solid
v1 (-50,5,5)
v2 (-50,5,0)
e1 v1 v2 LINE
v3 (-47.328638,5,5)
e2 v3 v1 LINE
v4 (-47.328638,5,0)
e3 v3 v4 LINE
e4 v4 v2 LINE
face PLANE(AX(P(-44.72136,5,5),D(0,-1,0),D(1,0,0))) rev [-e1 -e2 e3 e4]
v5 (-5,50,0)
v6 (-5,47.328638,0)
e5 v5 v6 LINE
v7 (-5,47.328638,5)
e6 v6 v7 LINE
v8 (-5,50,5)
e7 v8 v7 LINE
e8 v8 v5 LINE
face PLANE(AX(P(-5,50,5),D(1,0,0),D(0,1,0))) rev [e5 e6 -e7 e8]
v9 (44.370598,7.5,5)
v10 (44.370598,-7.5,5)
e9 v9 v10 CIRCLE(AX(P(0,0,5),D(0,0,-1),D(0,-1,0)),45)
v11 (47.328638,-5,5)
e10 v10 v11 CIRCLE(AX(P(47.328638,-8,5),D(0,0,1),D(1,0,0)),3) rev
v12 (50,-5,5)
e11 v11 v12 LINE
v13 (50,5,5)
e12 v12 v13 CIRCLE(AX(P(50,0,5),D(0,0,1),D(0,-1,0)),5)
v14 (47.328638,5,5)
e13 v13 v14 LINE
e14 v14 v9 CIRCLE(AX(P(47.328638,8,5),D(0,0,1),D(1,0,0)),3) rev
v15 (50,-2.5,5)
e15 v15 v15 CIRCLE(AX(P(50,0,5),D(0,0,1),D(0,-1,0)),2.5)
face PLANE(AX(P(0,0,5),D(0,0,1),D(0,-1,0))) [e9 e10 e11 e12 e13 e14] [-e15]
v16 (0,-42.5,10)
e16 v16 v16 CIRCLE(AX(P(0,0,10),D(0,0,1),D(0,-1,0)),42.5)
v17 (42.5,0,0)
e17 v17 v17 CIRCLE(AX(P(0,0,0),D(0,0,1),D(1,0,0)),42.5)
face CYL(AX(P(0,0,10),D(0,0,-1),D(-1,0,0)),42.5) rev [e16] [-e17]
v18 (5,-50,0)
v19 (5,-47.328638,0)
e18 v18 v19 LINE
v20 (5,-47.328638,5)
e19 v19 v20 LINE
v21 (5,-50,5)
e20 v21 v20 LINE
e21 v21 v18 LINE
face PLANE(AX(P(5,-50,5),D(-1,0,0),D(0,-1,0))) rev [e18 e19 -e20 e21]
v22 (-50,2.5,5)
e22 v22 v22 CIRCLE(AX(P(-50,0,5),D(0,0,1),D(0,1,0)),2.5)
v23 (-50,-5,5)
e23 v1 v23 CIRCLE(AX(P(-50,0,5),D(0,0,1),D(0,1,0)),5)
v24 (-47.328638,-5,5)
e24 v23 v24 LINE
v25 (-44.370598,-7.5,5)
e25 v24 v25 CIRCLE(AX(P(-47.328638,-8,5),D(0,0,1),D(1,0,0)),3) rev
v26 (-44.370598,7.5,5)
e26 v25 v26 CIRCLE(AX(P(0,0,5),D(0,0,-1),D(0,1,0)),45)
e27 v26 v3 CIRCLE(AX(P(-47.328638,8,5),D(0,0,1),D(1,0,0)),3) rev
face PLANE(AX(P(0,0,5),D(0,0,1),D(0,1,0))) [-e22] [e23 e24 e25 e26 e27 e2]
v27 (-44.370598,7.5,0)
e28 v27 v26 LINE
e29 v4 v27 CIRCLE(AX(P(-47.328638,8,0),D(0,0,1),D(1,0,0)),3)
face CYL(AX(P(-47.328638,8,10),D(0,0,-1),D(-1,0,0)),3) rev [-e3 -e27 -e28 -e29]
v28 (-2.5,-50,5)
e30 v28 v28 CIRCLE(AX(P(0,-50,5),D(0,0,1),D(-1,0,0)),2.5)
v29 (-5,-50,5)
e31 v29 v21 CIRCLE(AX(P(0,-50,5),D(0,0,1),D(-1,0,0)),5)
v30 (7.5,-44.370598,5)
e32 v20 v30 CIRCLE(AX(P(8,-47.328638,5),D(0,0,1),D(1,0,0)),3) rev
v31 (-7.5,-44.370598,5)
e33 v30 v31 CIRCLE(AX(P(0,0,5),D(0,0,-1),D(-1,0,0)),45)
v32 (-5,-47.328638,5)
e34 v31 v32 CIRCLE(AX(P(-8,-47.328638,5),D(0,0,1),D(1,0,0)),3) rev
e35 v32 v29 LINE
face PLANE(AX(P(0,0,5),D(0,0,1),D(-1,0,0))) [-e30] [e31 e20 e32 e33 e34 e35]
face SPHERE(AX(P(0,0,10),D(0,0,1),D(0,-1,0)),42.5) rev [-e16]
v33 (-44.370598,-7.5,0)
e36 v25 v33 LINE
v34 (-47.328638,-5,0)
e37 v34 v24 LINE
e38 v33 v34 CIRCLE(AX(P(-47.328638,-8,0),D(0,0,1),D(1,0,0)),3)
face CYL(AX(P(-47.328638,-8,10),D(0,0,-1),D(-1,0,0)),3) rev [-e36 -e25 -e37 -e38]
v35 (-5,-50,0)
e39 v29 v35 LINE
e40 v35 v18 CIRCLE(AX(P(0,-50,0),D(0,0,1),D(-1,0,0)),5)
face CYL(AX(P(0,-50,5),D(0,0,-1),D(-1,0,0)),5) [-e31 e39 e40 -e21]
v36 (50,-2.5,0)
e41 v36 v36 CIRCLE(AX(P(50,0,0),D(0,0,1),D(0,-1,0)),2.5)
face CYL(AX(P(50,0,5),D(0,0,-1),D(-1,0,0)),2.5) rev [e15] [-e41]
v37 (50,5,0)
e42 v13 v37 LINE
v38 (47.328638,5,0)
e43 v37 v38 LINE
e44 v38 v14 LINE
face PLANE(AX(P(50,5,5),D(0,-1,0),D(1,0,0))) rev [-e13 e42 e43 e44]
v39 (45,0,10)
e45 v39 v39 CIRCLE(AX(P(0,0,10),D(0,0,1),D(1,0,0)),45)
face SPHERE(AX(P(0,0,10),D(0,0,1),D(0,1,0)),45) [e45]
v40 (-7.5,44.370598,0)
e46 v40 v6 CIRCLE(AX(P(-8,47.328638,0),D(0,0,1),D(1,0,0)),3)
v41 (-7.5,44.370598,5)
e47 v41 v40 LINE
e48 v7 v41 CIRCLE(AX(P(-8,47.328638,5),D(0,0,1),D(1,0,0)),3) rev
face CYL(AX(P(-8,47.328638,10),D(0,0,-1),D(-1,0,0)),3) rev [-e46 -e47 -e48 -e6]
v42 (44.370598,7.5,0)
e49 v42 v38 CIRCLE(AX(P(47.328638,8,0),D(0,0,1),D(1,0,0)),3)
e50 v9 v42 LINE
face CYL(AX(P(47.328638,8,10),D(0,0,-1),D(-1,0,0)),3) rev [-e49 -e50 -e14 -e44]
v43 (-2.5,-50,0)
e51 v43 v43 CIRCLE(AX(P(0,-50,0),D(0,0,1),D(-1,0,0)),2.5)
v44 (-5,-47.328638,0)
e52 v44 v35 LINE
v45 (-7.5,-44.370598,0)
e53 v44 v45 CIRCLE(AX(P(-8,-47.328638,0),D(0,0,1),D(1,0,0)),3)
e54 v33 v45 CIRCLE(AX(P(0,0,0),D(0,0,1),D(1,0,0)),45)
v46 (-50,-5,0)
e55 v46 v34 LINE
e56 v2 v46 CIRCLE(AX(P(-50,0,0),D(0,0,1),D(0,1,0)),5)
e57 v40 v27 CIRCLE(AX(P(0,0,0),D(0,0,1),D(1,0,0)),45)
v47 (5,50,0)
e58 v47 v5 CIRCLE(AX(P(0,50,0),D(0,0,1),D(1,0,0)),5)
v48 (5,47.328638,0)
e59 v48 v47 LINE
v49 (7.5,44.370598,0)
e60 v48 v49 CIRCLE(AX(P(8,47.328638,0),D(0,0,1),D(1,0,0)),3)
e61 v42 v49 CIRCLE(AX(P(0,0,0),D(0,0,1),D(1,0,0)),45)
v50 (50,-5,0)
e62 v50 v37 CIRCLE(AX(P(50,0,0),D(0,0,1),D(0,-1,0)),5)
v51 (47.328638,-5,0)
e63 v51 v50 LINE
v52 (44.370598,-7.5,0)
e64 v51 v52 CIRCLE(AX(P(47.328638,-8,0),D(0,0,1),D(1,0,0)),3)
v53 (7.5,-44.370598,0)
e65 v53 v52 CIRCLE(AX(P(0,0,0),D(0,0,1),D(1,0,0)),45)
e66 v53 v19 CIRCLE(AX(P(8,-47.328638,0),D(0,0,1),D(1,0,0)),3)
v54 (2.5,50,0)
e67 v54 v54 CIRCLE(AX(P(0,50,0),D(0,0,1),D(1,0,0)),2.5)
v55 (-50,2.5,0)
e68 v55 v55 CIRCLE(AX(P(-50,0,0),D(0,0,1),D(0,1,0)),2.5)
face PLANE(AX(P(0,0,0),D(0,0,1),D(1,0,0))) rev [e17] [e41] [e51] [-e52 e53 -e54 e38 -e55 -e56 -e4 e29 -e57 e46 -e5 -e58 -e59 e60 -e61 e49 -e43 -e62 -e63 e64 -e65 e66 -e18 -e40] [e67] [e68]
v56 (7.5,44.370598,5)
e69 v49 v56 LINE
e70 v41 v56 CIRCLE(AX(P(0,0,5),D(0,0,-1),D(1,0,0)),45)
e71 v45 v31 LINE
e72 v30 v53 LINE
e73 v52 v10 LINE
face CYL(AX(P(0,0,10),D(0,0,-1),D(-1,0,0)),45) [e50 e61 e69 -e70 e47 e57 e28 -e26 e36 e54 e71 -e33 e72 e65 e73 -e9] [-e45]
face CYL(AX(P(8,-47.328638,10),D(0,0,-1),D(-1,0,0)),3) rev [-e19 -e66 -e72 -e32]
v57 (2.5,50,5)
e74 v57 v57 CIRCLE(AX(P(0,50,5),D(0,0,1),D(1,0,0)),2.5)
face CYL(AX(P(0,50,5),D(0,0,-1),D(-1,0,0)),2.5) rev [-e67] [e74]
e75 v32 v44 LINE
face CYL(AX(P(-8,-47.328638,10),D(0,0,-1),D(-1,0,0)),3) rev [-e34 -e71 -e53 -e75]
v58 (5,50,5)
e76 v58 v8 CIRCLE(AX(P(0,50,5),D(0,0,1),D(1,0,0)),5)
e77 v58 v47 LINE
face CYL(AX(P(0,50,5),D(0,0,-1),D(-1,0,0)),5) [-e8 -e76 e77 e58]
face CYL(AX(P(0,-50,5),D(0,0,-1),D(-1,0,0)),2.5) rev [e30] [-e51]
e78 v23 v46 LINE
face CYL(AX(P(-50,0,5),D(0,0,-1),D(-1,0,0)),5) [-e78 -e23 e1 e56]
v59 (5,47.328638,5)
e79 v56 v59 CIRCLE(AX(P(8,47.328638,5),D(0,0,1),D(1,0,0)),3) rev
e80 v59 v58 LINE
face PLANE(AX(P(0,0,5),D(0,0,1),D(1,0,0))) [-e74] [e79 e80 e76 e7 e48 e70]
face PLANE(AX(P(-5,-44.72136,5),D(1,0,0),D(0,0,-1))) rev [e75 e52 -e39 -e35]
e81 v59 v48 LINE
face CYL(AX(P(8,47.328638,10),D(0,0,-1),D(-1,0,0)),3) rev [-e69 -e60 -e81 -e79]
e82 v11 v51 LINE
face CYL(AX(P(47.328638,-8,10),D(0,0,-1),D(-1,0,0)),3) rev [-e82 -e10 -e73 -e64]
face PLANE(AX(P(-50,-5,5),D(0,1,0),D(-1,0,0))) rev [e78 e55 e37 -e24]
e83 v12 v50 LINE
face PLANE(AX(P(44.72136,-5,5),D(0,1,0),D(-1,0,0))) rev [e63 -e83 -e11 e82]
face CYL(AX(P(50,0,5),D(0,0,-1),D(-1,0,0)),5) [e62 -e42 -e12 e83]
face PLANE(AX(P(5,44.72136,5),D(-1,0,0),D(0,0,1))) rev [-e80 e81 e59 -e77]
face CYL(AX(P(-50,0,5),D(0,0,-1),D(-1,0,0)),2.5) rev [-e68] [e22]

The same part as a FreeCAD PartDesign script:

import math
import FreeCAD as App
import Part
import Sketcher

V = App.Vector
Q = App.Units.Quantity


def edges_at(feature, points):
    """Names of the edges that pass closest to the given points."""
    edges = feature.Shape.Edges
    near = lambda p: min(range(len(edges)), key=lambda i: edges[i].distToShape(Part.Vertex(*p))[0])
    return sorted({f"Edge{near(p) + 1}" for p in points})

doc = App.newDocument("Part")
body = doc.addObject("PartDesign::Body", "Body")

sketch1 = body.newObject("Sketcher::SketchObject", "Sketch")
sketch1.AttachmentSupport = (doc.getObject("XY_Plane"), [""])
sketch1.MapMode = "FlatFace"
sketch1.addGeometry(Part.Circle(V(0, 0, 0), V(0, 0, 1), 45), False)
sketch1.addGeometry(Part.Circle(V(0, 0, 0), V(0, 0, 1), 42), False)
sketch1.addConstraint(Sketcher.Constraint("Coincident", 0, 3, -1, 1))
sketch1.addConstraint(Sketcher.Constraint("Coincident", 1, 3, -1, 1))
sketch1.addConstraint(Sketcher.Constraint("Diameter", 0, Q("90 mm")))
sketch1.addConstraint(Sketcher.Constraint("Diameter", 1, Q("85 mm")))
pad1 = body.newObject("PartDesign::Pad", "Pad")
pad1.Profile = sketch1
pad1.Length = 10

sketch2 = body.newObject("Sketcher::SketchObject", "Sketch001")
sketch2.AttachmentSupport = (doc.getObject("YZ_Plane"), [""])
sketch2.MapMode = "FlatFace"
sketch2.addGeometry(Part.LineSegment(V(0, 52.5, 0), V(0, 55, 0)), False)
sketch2.addGeometry(Part.ArcOfCircle(Part.Circle(V(0, 10, 0), V(0, 0, 1), 45), math.radians(90), math.radians(180)), False)
sketch2.addGeometry(Part.LineSegment(V(-45, 10, 0), V(-42.5, 10, 0)), False)
sketch2.addGeometry(Part.ArcOfCircle(Part.Circle(V(0, 10, 0), V(0, 0, 1), 42.5), math.radians(90), math.radians(180)), False)
sketch2.addConstraint(Sketcher.Constraint("Coincident", 0, 2, 1, 1))
sketch2.addConstraint(Sketcher.Constraint("Coincident", 1, 2, 2, 1))
sketch2.addConstraint(Sketcher.Constraint("Coincident", 2, 2, 3, 2))
sketch2.addConstraint(Sketcher.Constraint("Coincident", 3, 1, 0, 1))
sketch2.addConstraint(Sketcher.Constraint("Vertical", 0))
sketch2.addConstraint(Sketcher.Constraint("Horizontal", 2))
sketch2.addConstraint(Sketcher.Constraint("Coincident", 3, 3, 1, 3))
sketch2.addConstraint(Sketcher.Constraint("PointOnObject", 1, 3, -2))
sketch2.addConstraint(Sketcher.Constraint("PointOnObject", 0, 2, -2))
sketch2.addConstraint(Sketcher.Constraint("Horizontal", 3, 3, 1, 2))
sketch2.addConstraint(Sketcher.Constraint("Radius", 1, Q("45 mm")))
sketch2.addConstraint(Sketcher.Constraint("Radius", 3, Q("42.5 mm")))
sketch2.addConstraint(Sketcher.Constraint("DistanceY", -1, 1, 1, 3, Q("10 mm")))
revolution = body.newObject("PartDesign::Revolution", "Revolution")
revolution.Profile = sketch2
revolution.ReferenceAxis = (sketch2, ["V_Axis"])
revolution.Angle = 360

sketch3 = body.newObject("Sketcher::SketchObject", "Sketch002")
sketch3.AttachmentSupport = (doc.getObject("XY_Plane"), [""])
sketch3.MapMode = "FlatFace"
sketch3.addGeometry(Part.LineSegment(V(5, 44.7, 0), V(5, 50, 0)), False)
sketch3.addGeometry(Part.ArcOfCircle(Part.Circle(V(0, 50, 0), V(0, 0, 1), 5), math.radians(0), math.radians(180)), False)
sketch3.addGeometry(Part.LineSegment(V(-5, 50, 0), V(-5, 44.7, 0)), False)
sketch3.addGeometry(Part.ArcOfCircle(Part.Circle(V(0, 0, 0), V(0, 0, 1), 45), math.radians(83.62), math.radians(96.38)), False)
sketch3.addGeometry(Part.Circle(V(0, 50, 0), V(0, 0, 1), 2.5), False)
sketch3.addConstraint(Sketcher.Constraint("Tangent", 0, 2, 1, 1))
sketch3.addConstraint(Sketcher.Constraint("Tangent", 1, 2, 2, 1))
sketch3.addConstraint(Sketcher.Constraint("Coincident", 2, 2, 3, 2))
sketch3.addConstraint(Sketcher.Constraint("Coincident", 3, 1, 0, 1))
sketch3.addConstraint(Sketcher.Constraint("Vertical", 0))
sketch3.addConstraint(Sketcher.Constraint("Vertical", 2))
sketch3.addConstraint(Sketcher.Constraint("Coincident", 3, 3, -1, 1))
sketch3.addConstraint(Sketcher.Constraint("Coincident", 4, 3, 1, 3))
sketch3.addConstraint(Sketcher.Constraint("PointOnObject", 1, 3, -2))
sketch3.addConstraint(Sketcher.Constraint("Diameter", 4, Q("5 mm")))
sketch3.addConstraint(Sketcher.Constraint("Radius", 1, Q("5 mm")))
sketch3.addConstraint(Sketcher.Constraint("Radius", 3, Q("45 mm")))
sketch3.addConstraint(Sketcher.Constraint("DistanceY", -1, 1, 1, 3, Q("50 mm")))
pad2 = body.newObject("PartDesign::Pad", "Pad001")
pad2.Profile = sketch3
pad2.Length = 5
doc.recompute()

fillet = body.newObject("PartDesign::Fillet", "Fillet")
fillet.Base = (pad2, edges_at(pad2, [(-5, 44.721, 2.5), (5, 44.721, 2.5)]))
fillet.Radius = 3
doc.recompute()

polarpattern = body.newObject("PartDesign::PolarPattern", "PolarPattern")
polarpattern.Originals = [pad2]
polarpattern.Axis = (doc.getObject("Z_Axis"), [""])
polarpattern.Angle = 360
polarpattern.Occurrences = 4
body.Tip = polarpattern
doc.recompute()

fillet2 = body.newObject("PartDesign::Fillet", "Fillet001")
fillet2.Base = (polarpattern, edges_at(polarpattern, [
    (-44.721, -5, 2.5),
    (-44.721, 5, 2.5),
    (5, -44.721, 2.5),
    (-5, -44.721, 2.5),
    (44.721, 5, 2.5),
    (44.721, -5, 2.5),
]))
fillet2.Radius = 3

doc.recompute()
